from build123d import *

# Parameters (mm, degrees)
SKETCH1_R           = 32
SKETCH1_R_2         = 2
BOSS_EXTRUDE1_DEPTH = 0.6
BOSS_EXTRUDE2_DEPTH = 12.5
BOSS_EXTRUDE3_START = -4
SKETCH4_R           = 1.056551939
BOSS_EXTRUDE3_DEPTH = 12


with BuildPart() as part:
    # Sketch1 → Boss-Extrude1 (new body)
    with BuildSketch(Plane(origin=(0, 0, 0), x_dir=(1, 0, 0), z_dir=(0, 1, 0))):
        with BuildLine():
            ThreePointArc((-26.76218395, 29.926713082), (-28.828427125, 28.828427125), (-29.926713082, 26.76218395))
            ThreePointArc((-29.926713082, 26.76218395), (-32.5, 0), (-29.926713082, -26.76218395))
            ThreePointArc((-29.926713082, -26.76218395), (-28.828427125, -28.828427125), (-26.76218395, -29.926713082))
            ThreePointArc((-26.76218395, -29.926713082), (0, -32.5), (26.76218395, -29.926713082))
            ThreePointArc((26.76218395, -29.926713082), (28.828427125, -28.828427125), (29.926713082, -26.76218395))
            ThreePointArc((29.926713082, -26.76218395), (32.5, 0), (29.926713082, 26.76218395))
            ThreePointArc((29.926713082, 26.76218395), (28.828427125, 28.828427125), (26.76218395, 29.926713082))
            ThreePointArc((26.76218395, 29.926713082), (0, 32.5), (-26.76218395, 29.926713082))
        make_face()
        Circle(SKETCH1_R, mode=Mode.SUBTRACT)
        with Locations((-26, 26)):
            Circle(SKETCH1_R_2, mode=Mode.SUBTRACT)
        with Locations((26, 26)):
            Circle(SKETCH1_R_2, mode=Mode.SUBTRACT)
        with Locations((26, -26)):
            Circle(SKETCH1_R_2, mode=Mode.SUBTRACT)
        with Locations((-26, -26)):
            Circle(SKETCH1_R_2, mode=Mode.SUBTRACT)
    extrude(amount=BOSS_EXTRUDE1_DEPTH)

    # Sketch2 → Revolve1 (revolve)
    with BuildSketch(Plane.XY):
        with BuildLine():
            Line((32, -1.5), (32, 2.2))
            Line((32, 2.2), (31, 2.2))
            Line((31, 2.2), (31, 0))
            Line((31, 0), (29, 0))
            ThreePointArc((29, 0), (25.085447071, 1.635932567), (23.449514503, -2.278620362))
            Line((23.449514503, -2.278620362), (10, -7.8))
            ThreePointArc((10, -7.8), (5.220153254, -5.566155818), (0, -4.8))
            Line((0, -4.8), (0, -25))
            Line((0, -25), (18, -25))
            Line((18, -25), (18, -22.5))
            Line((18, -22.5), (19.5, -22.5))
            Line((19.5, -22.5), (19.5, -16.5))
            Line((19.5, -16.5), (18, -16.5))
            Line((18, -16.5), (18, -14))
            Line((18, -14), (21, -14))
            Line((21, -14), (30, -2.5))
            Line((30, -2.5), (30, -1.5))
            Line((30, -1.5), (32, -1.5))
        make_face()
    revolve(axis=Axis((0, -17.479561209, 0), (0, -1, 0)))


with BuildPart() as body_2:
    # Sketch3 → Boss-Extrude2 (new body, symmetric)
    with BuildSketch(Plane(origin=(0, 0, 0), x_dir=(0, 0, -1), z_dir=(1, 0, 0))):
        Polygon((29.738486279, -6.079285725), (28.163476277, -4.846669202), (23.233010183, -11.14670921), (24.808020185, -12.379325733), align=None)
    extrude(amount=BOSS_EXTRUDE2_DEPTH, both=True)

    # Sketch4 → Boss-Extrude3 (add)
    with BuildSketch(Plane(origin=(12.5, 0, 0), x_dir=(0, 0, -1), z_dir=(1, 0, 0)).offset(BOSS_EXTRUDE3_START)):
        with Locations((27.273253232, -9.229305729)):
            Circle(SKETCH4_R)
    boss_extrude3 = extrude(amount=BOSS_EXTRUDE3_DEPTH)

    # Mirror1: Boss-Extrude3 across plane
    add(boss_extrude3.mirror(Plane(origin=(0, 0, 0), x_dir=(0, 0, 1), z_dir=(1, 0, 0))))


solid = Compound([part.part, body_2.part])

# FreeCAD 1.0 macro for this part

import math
import FreeCAD as App
import Part
import Sketcher
Q = App.Units.Quantity


def add_polygon(sketch, points):
    """Adds a closed chain of lines whose ends are joined by coincident constraints."""
    first, n = sketch.GeometryCount, len(points)
    for a, b in zip(points, points[1:] + points[:1]):
        sketch.addGeometry(Part.LineSegment(App.Vector(*a, 0), App.Vector(*b, 0)), False)
    for i in range(n):
        sketch.addConstraint(Sketcher.Constraint("Coincident", first + i, 2, first + (i + 1) % n, 1))

doc = App.newDocument("Part")
params = doc.addObject("Spreadsheet::Sheet", "Params")
for row, (alias, value) in enumerate([
    ("sketch1_diameter", "4 mm"),
    ("sketch1_diameter2", "64 mm"),
    ("sketch1_radius", "4 mm"),
    ("sketch1_radius2", "140.45 mm"),
    ("pad1_length", "0.6 mm"),
    ("sketch2_radius", "3 mm"),
    ("sketch2_width", "1 mm"),
    ("sketch2_width2", "2 mm"),
    ("sketch2_width3", "18 mm"),
    ("sketch2_width4", "3 mm"),
    ("revolution_angle", "360 deg"),
    ("sketch3_length", "2 mm"),
    ("sketch3_length2", "8 mm"),
    ("pad2_length", "25 mm"),
    ("pad3_length", "12 mm"),
], start=1):
    params.set(f"A{row}", alias)
    params.set(f"B{row}", "=" + value)
    params.setAlias(f"B{row}", alias)

body = doc.addObject("PartDesign::Body", "Body")

sketch1 = doc.addObject("Sketcher::SketchObject", "Sketch")
body.addObject(sketch1)
sketch1.AttachmentSupport = (doc.XZ_Plane, [""])
sketch1.MapMode = "FlatFace"
sketch1.addGeometry(Part.ArcOfCircle(Part.Circle(App.Vector(-26, -26, 0), App.Vector(0, 0, 1), 4), math.radians(-169), math.radians(-101)), False)
sketch1.addGeometry(Part.ArcOfCircle(Part.Circle(App.Vector(108, 0, 0), App.Vector(0, 0, 1), 140.5), math.radians(169), math.radians(191)), False)
sketch1.addGeometry(Part.ArcOfCircle(Part.Circle(App.Vector(-26, 26, 0), App.Vector(0, 0, 1), 4), math.radians(101), math.radians(169)), False)
sketch1.addGeometry(Part.ArcOfCircle(Part.Circle(App.Vector(0, -108, 0), App.Vector(0, 0, 1), 140.5), math.radians(79), math.radians(101)), False)
sketch1.addGeometry(Part.ArcOfCircle(Part.Circle(App.Vector(26, 26, 0), App.Vector(0, 0, 1), 4), math.radians(11), math.radians(79)), False)
sketch1.addGeometry(Part.ArcOfCircle(Part.Circle(App.Vector(-108, 0, 0), App.Vector(0, 0, 1), 140.5), math.radians(-11), math.radians(11)), False)
sketch1.addGeometry(Part.ArcOfCircle(Part.Circle(App.Vector(26, -26, 0), App.Vector(0, 0, 1), 4), math.radians(-79), math.radians(-11)), False)
sketch1.addGeometry(Part.ArcOfCircle(Part.Circle(App.Vector(0, 108, 0), App.Vector(0, 0, 1), 140.5), math.radians(-101), math.radians(-79)), False)
sketch1.addGeometry(Part.Circle(App.Vector(-26, 26, 0), App.Vector(0, 0, 1), 2), False)
sketch1.addGeometry(Part.Circle(App.Vector(26, 26, 0), App.Vector(0, 0, 1), 2), False)
sketch1.addGeometry(Part.Circle(App.Vector(-26, -26, 0), App.Vector(0, 0, 1), 2), False)
sketch1.addGeometry(Part.Circle(App.Vector(0, 0, 0), App.Vector(0, 0, 1), 32), False)
sketch1.addGeometry(Part.Circle(App.Vector(26, -26, 0), App.Vector(0, 0, 1), 2), False)
sketch1.addConstraint(Sketcher.Constraint("Tangent", 0, 1, 1, 2))
sketch1.addConstraint(Sketcher.Constraint("Tangent", 1, 1, 2, 2))
sketch1.addConstraint(Sketcher.Constraint("Tangent", 2, 1, 3, 2))
sketch1.addConstraint(Sketcher.Constraint("Tangent", 3, 1, 4, 2))
sketch1.addConstraint(Sketcher.Constraint("Tangent", 4, 1, 5, 2))
sketch1.addConstraint(Sketcher.Constraint("Tangent", 5, 1, 6, 2))
sketch1.addConstraint(Sketcher.Constraint("Tangent", 6, 1, 7, 2))
sketch1.addConstraint(Sketcher.Constraint("Tangent", 7, 1, 0, 2))
sketch1.addConstraint(Sketcher.Constraint("Coincident", 11, 3, -1, 1))
sketch1.addConstraint(Sketcher.Constraint("Coincident", 8, 3, 2, 3))
sketch1.addConstraint(Sketcher.Constraint("Coincident", 9, 3, 4, 3))
sketch1.addConstraint(Sketcher.Constraint("Coincident", 10, 3, 0, 3))
sketch1.addConstraint(Sketcher.Constraint("Coincident", 12, 3, 6, 3))
sketch1.addConstraint(Sketcher.Constraint("Equal", 0, 2))
sketch1.addConstraint(Sketcher.Constraint("Equal", 1, 3))
sketch1.addConstraint(Sketcher.Constraint("Equal", 2, 4))
sketch1.addConstraint(Sketcher.Constraint("Equal", 3, 5))
sketch1.addConstraint(Sketcher.Constraint("Equal", 4, 6))
sketch1.addConstraint(Sketcher.Constraint("Equal", 5, 7))
sketch1.addConstraint(Sketcher.Constraint("Equal", 8, 9))
sketch1.addConstraint(Sketcher.Constraint("Equal", 9, 10))
sketch1.addConstraint(Sketcher.Constraint("Equal", 10, 12))
sketch1.addConstraint(Sketcher.Constraint("Symmetric", 0, 3, 4, 3, -1, 1))
sketch1.addConstraint(Sketcher.Constraint("Symmetric", 2, 3, 6, 3, -1, 1))
sketch1.addConstraint(Sketcher.Constraint("Symmetric", 2, 3, 4, 3, -2))
sketch1.addConstraint(Sketcher.Constraint("Diameter", 8, Q("4 mm")))
sketch1.addConstraint(Sketcher.Constraint("Diameter", 11, Q("64 mm")))
sketch1.addConstraint(Sketcher.Constraint("Radius", 0, Q("4 mm")))
sketch1.addConstraint(Sketcher.Constraint("Radius", 1, Q("140.45 mm")))
sketch1.addConstraint(Sketcher.Constraint("DistanceX", 0, 3, -1, 1, Q("26 mm")))
sketch1.addConstraint(Sketcher.Constraint("DistanceY", 0, 3, -1, 1, Q("26 mm")))
sketch1.setExpression("Constraints[25]", "Params.sketch1_diameter")
sketch1.setExpression("Constraints[26]", "Params.sketch1_diameter2")
sketch1.setExpression("Constraints[27]", "Params.sketch1_radius")
sketch1.setExpression("Constraints[28]", "Params.sketch1_radius2")
pad1 = doc.addObject("PartDesign::Pad", "Pad")
body.addObject(pad1)
pad1.Profile = sketch1
pad1.setExpression("Length", "Params.pad1_length")
pad1.Reversed = True

sketch2 = doc.addObject("Sketcher::SketchObject", "Sketch001")
body.addObject(sketch2)
sketch2.AttachmentSupport = (doc.XY_Plane, [""])
sketch2.MapMode = "FlatFace"
sketch2.addGeometry(Part.LineSegment(App.Vector(32, -1.5, 0), App.Vector(32, 2.2, 0)), False)
sketch2.addGeometry(Part.LineSegment(App.Vector(32, 2.2, 0), App.Vector(31, 2.2, 0)), False)
sketch2.addGeometry(Part.LineSegment(App.Vector(31, 2.2, 0), App.Vector(31, 0, 0)), False)
sketch2.addGeometry(Part.LineSegment(App.Vector(31, 0, 0), App.Vector(29, 0, 0)), False)
sketch2.addGeometry(Part.ArcOfCircle(Part.Circle(App.Vector(26.2, -1.1, 0), App.Vector(0, 0, 1), 3), math.radians(22), math.radians(202)), False)
sketch2.addGeometry(Part.LineSegment(App.Vector(23.4, -2.3, 0), App.Vector(10, -7.8, 0)), False)
sketch2.addGeometry(Part.ArcOfCircle(Part.Circle(App.Vector(0, -23, 0), App.Vector(0, 0, 1), 18.2), math.radians(57), math.radians(90)), False)
sketch2.addGeometry(Part.LineSegment(App.Vector(0, -4.8, 0), App.Vector(0, -25, 0)), False)
sketch2.addGeometry(Part.LineSegment(App.Vector(0, -25, 0), App.Vector(18, -25, 0)), False)
sketch2.addGeometry(Part.LineSegment(App.Vector(18, -25, 0), App.Vector(18, -22.5, 0)), False)
sketch2.addGeometry(Part.LineSegment(App.Vector(18, -22.5, 0), App.Vector(19.5, -22.5, 0)), False)
sketch2.addGeometry(Part.LineSegment(App.Vector(19.5, -22.5, 0), App.Vector(19.5, -16.5, 0)), False)
sketch2.addGeometry(Part.LineSegment(App.Vector(19.5, -16.5, 0), App.Vector(18, -16.5, 0)), False)
sketch2.addGeometry(Part.LineSegment(App.Vector(18, -16.5, 0), App.Vector(18, -14, 0)), False)
sketch2.addGeometry(Part.LineSegment(App.Vector(18, -14, 0), App.Vector(21, -14, 0)), False)
sketch2.addGeometry(Part.LineSegment(App.Vector(21, -14, 0), App.Vector(30, -2.5, 0)), False)
sketch2.addGeometry(Part.LineSegment(App.Vector(30, -2.5, 0), App.Vector(30, -1.5, 0)), False)
sketch2.addGeometry(Part.LineSegment(App.Vector(30, -1.5, 0), App.Vector(32, -1.5, 0)), False)
sketch2.addConstraint(Sketcher.Constraint("Coincident", 0, 2, 1, 1))
sketch2.addConstraint(Sketcher.Constraint("Coincident", 1, 2, 2, 1))
sketch2.addConstraint(Sketcher.Constraint("Coincident", 2, 2, 3, 1))
sketch2.addConstraint(Sketcher.Constraint("Coincident", 3, 2, 4, 1))
sketch2.addConstraint(Sketcher.Constraint("Coincident", 4, 2, 5, 1))
sketch2.addConstraint(Sketcher.Constraint("Coincident", 5, 2, 6, 1))
sketch2.addConstraint(Sketcher.Constraint("Coincident", 6, 2, 7, 1))
sketch2.addConstraint(Sketcher.Constraint("Coincident", 7, 2, 8, 1))
sketch2.addConstraint(Sketcher.Constraint("Coincident", 8, 2, 9, 1))
sketch2.addConstraint(Sketcher.Constraint("Coincident", 9, 2, 10, 1))
sketch2.addConstraint(Sketcher.Constraint("Coincident", 10, 2, 11, 1))
sketch2.addConstraint(Sketcher.Constraint("Coincident", 11, 2, 12, 1))
sketch2.addConstraint(Sketcher.Constraint("Coincident", 12, 2, 13, 1))
sketch2.addConstraint(Sketcher.Constraint("Coincident", 13, 2, 14, 1))
sketch2.addConstraint(Sketcher.Constraint("Coincident", 14, 2, 15, 1))
sketch2.addConstraint(Sketcher.Constraint("Coincident", 15, 2, 16, 1))
sketch2.addConstraint(Sketcher.Constraint("Coincident", 16, 2, 17, 1))
sketch2.addConstraint(Sketcher.Constraint("Coincident", 17, 2, 0, 1))
sketch2.addConstraint(Sketcher.Constraint("Vertical", 0))
sketch2.addConstraint(Sketcher.Constraint("Horizontal", 1))
sketch2.addConstraint(Sketcher.Constraint("Vertical", 2))
sketch2.addConstraint(Sketcher.Constraint("Horizontal", 3))
sketch2.addConstraint(Sketcher.Constraint("Vertical", 7))
sketch2.addConstraint(Sketcher.Constraint("Horizontal", 8))
sketch2.addConstraint(Sketcher.Constraint("Vertical", 9))
sketch2.addConstraint(Sketcher.Constraint("Horizontal", 10))
sketch2.addConstraint(Sketcher.Constraint("Vertical", 11))
sketch2.addConstraint(Sketcher.Constraint("Horizontal", 12))
sketch2.addConstraint(Sketcher.Constraint("Vertical", 13))
sketch2.addConstraint(Sketcher.Constraint("Horizontal", 14))
sketch2.addConstraint(Sketcher.Constraint("Vertical", 16))
sketch2.addConstraint(Sketcher.Constraint("Horizontal", 17))
sketch2.addConstraint(Sketcher.Constraint("PointOnObject", 6, 3, -2))
sketch2.addConstraint(Sketcher.Constraint("PointOnObject", 2, 2, -1))
sketch2.addConstraint(Sketcher.Constraint("PointOnObject", 6, 2, -2))
sketch2.addConstraint(Sketcher.Constraint("Vertical", 9, 2, 12, 2))
sketch2.addConstraint(Sketcher.Constraint("Equal", 3, 17))
sketch2.addConstraint(Sketcher.Constraint("Equal", 9, 13))
sketch2.addConstraint(Sketcher.Constraint("Equal", 1, 16))
sketch2.addConstraint(Sketcher.Constraint("Radius", 4, Q("3 mm")))
sketch2.addConstraint(Sketcher.Constraint("DistanceX", 1, 2, 1, 1, Q("1 mm")))
sketch2.addConstraint(Sketcher.Constraint("DistanceX", 3, 2, 3, 1, Q("2 mm")))
sketch2.addConstraint(Sketcher.Constraint("DistanceX", 8, 1, 8, 2, Q("18 mm")))
sketch2.addConstraint(Sketcher.Constraint("DistanceX", 14, 1, 14, 2, Q("3 mm")))
sketch2.addConstraint(Sketcher.Constraint("DistanceY", 11, 1, 11, 2, Q("6 mm")))
sketch2.addConstraint(Sketcher.Constraint("DistanceX", 10, 1, 10, 2, Q("1.5 mm")))
sketch2.addConstraint(Sketcher.Constraint("DistanceY", 0, 1, 0, 2, Q("3.7 mm")))
sketch2.addConstraint(Sketcher.Constraint("DistanceY", 2, 2, 2, 1, Q("2.2 mm")))
sketch2.addConstraint(Sketcher.Constraint("DistanceY", 7, 2, 7, 1, Q("20.2 mm")))
sketch2.addConstraint(Sketcher.Constraint("DistanceY", 9, 1, 9, 2, Q("2.5 mm")))
sketch2.addConstraint(Sketcher.Constraint("DistanceX", -1, 1, 0, 2, Q("32 mm")))
sketch2.addConstraint(Sketcher.Constraint("DistanceX", -1, 1, 5, 2, Q("10 mm")))
sketch2.addConstraint(Sketcher.Constraint("DistanceY", 7, 2, -1, 1, Q("25 mm")))
sketch2.addConstraint(Sketcher.Constraint("DistanceY", 5, 2, 6, 2, Q("3 mm")))
sketch2.addConstraint(Sketcher.Constraint("DistanceY", 4, 3, -1, 1, Q("1.13931 mm")))
sketch2.addConstraint(Sketcher.Constraint("DistanceY", 4, 2, -1, 1, Q("2.27862 mm")))
sketch2.setExpression("Constraints[39]", "Params.sketch2_radius")
sketch2.setExpression("Constraints[40]", "Params.sketch2_width")
sketch2.setExpression("Constraints[41]", "Params.sketch2_width2")
sketch2.setExpression("Constraints[42]", "Params.sketch2_width3")
sketch2.setExpression("Constraints[43]", "Params.sketch2_width4")
revolution = doc.addObject("PartDesign::Revolution", "Revolution")
body.addObject(revolution)
revolution.Profile = sketch2
revolution.ReferenceAxis = (sketch2, ["V_Axis"])
revolution.setExpression("Angle", "Params.revolution_angle")
body2 = doc.addObject("PartDesign::Body", "Body001")

sketch3 = doc.addObject("Sketcher::SketchObject", "Sketch002")
body2.addObject(sketch3)
sketch3.AttachmentSupport = (doc.getObject("YZ_Plane001"), [""])
sketch3.MapMode = "FlatFace"
add_polygon(sketch3, [(-6.1, -29.7), (-4.8, -28.2), (-11.1, -23.2), (-12.4, -24.8)])
sketch3.addConstraint(Sketcher.Constraint("Perpendicular", 0, 1))
sketch3.addConstraint(Sketcher.Constraint("Perpendicular", 1, 2))
sketch3.addConstraint(Sketcher.Constraint("Perpendicular", 2, 3))
sketch3.addConstraint(Sketcher.Constraint("Distance", 0, Q("2 mm")))
sketch3.addConstraint(Sketcher.Constraint("Distance", 1, Q("8 mm")))
sketch3.addConstraint(Sketcher.Constraint("DistanceX", 0, 2, -1, 1, Q("4.846669 mm")))
sketch3.addConstraint(Sketcher.Constraint("DistanceX", 1, 2, -1, 1, Q("11.146709 mm")))
sketch3.addConstraint(Sketcher.Constraint("DistanceY", 1, 2, -1, 1, Q("23.23301 mm")))
sketch3.setExpression("Constraints[7]", "Params.sketch3_length")
sketch3.setExpression("Constraints[8]", "Params.sketch3_length2")
pad2 = doc.addObject("PartDesign::Pad", "Pad001")
body2.addObject(pad2)
pad2.Profile = sketch3
pad2.setExpression("Length", "Params.pad2_length")
pad2.Midplane = True

sketch4 = doc.addObject("Sketcher::SketchObject", "Sketch003")
body2.addObject(sketch4)
sketch4.AttachmentSupport = (doc.getObject("YZ_Plane001"), [""])
sketch4.MapMode = "FlatFace"
sketch4.AttachmentOffset = App.Placement(App.Vector(0, 0, 8.5), App.Rotation())
sketch4.addGeometry(Part.Circle(App.Vector(-9.2, -27.3, 0), App.Vector(0, 0, 1), 1.1), False)
sketch4.addConstraint(Sketcher.Constraint("Diameter", 0, Q("2.113104 mm")))
sketch4.addConstraint(Sketcher.Constraint("DistanceX", 0, 3, -1, 1, Q("9.229306 mm")))
sketch4.addConstraint(Sketcher.Constraint("DistanceY", 0, 3, -1, 1, Q("27.273253 mm")))
pad3 = doc.addObject("PartDesign::Pad", "Pad002")
body2.addObject(pad3)
pad3.Profile = sketch4
pad3.setExpression("Length", "Params.pad3_length")
doc.recompute()

mirrored = doc.addObject("PartDesign::Mirrored", "Mirrored")
body2.addObject(mirrored)
mirrored.Originals = [pad3]
mirrored.MirrorPlane = (doc.getObject("YZ_Plane001"), [""])
body2.Tip = mirrored

doc.recompute()
